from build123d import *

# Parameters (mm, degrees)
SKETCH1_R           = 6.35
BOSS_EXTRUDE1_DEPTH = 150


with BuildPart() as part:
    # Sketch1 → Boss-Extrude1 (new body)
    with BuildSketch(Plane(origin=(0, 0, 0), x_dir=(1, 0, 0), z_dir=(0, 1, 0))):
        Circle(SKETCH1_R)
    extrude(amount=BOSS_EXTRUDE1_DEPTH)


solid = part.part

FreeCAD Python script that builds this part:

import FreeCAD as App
import Part
import Sketcher
from FreeCAD import Vector
Q = App.Units.Quantity

doc = App.newDocument("Part")
body = doc.addObject("PartDesign::Body", "Body")

# Sketch on XZ plane
sketch1 = body.newObject("Sketcher::SketchObject", "Sketch")
sketch1.AttachmentSupport = (doc.getObject("XZ_Plane"), [""])
sketch1.MapMode = "FlatFace"
sketch1.addGeometry(Part.Circle(Vector(0, 0, 0), Vector(0, 0, 1), 6), False)
sketch1.addConstraint([
    Sketcher.Constraint("Coincident", 0, 3, -1, 1),
    Sketcher.Constraint("Diameter", 0, Q("12.7 mm")),
])
pad1 = body.newObject("PartDesign::Pad", "Pad")
pad1.Profile = sketch1
pad1.Length = 150
pad1.Reversed = True

doc.recompute()
